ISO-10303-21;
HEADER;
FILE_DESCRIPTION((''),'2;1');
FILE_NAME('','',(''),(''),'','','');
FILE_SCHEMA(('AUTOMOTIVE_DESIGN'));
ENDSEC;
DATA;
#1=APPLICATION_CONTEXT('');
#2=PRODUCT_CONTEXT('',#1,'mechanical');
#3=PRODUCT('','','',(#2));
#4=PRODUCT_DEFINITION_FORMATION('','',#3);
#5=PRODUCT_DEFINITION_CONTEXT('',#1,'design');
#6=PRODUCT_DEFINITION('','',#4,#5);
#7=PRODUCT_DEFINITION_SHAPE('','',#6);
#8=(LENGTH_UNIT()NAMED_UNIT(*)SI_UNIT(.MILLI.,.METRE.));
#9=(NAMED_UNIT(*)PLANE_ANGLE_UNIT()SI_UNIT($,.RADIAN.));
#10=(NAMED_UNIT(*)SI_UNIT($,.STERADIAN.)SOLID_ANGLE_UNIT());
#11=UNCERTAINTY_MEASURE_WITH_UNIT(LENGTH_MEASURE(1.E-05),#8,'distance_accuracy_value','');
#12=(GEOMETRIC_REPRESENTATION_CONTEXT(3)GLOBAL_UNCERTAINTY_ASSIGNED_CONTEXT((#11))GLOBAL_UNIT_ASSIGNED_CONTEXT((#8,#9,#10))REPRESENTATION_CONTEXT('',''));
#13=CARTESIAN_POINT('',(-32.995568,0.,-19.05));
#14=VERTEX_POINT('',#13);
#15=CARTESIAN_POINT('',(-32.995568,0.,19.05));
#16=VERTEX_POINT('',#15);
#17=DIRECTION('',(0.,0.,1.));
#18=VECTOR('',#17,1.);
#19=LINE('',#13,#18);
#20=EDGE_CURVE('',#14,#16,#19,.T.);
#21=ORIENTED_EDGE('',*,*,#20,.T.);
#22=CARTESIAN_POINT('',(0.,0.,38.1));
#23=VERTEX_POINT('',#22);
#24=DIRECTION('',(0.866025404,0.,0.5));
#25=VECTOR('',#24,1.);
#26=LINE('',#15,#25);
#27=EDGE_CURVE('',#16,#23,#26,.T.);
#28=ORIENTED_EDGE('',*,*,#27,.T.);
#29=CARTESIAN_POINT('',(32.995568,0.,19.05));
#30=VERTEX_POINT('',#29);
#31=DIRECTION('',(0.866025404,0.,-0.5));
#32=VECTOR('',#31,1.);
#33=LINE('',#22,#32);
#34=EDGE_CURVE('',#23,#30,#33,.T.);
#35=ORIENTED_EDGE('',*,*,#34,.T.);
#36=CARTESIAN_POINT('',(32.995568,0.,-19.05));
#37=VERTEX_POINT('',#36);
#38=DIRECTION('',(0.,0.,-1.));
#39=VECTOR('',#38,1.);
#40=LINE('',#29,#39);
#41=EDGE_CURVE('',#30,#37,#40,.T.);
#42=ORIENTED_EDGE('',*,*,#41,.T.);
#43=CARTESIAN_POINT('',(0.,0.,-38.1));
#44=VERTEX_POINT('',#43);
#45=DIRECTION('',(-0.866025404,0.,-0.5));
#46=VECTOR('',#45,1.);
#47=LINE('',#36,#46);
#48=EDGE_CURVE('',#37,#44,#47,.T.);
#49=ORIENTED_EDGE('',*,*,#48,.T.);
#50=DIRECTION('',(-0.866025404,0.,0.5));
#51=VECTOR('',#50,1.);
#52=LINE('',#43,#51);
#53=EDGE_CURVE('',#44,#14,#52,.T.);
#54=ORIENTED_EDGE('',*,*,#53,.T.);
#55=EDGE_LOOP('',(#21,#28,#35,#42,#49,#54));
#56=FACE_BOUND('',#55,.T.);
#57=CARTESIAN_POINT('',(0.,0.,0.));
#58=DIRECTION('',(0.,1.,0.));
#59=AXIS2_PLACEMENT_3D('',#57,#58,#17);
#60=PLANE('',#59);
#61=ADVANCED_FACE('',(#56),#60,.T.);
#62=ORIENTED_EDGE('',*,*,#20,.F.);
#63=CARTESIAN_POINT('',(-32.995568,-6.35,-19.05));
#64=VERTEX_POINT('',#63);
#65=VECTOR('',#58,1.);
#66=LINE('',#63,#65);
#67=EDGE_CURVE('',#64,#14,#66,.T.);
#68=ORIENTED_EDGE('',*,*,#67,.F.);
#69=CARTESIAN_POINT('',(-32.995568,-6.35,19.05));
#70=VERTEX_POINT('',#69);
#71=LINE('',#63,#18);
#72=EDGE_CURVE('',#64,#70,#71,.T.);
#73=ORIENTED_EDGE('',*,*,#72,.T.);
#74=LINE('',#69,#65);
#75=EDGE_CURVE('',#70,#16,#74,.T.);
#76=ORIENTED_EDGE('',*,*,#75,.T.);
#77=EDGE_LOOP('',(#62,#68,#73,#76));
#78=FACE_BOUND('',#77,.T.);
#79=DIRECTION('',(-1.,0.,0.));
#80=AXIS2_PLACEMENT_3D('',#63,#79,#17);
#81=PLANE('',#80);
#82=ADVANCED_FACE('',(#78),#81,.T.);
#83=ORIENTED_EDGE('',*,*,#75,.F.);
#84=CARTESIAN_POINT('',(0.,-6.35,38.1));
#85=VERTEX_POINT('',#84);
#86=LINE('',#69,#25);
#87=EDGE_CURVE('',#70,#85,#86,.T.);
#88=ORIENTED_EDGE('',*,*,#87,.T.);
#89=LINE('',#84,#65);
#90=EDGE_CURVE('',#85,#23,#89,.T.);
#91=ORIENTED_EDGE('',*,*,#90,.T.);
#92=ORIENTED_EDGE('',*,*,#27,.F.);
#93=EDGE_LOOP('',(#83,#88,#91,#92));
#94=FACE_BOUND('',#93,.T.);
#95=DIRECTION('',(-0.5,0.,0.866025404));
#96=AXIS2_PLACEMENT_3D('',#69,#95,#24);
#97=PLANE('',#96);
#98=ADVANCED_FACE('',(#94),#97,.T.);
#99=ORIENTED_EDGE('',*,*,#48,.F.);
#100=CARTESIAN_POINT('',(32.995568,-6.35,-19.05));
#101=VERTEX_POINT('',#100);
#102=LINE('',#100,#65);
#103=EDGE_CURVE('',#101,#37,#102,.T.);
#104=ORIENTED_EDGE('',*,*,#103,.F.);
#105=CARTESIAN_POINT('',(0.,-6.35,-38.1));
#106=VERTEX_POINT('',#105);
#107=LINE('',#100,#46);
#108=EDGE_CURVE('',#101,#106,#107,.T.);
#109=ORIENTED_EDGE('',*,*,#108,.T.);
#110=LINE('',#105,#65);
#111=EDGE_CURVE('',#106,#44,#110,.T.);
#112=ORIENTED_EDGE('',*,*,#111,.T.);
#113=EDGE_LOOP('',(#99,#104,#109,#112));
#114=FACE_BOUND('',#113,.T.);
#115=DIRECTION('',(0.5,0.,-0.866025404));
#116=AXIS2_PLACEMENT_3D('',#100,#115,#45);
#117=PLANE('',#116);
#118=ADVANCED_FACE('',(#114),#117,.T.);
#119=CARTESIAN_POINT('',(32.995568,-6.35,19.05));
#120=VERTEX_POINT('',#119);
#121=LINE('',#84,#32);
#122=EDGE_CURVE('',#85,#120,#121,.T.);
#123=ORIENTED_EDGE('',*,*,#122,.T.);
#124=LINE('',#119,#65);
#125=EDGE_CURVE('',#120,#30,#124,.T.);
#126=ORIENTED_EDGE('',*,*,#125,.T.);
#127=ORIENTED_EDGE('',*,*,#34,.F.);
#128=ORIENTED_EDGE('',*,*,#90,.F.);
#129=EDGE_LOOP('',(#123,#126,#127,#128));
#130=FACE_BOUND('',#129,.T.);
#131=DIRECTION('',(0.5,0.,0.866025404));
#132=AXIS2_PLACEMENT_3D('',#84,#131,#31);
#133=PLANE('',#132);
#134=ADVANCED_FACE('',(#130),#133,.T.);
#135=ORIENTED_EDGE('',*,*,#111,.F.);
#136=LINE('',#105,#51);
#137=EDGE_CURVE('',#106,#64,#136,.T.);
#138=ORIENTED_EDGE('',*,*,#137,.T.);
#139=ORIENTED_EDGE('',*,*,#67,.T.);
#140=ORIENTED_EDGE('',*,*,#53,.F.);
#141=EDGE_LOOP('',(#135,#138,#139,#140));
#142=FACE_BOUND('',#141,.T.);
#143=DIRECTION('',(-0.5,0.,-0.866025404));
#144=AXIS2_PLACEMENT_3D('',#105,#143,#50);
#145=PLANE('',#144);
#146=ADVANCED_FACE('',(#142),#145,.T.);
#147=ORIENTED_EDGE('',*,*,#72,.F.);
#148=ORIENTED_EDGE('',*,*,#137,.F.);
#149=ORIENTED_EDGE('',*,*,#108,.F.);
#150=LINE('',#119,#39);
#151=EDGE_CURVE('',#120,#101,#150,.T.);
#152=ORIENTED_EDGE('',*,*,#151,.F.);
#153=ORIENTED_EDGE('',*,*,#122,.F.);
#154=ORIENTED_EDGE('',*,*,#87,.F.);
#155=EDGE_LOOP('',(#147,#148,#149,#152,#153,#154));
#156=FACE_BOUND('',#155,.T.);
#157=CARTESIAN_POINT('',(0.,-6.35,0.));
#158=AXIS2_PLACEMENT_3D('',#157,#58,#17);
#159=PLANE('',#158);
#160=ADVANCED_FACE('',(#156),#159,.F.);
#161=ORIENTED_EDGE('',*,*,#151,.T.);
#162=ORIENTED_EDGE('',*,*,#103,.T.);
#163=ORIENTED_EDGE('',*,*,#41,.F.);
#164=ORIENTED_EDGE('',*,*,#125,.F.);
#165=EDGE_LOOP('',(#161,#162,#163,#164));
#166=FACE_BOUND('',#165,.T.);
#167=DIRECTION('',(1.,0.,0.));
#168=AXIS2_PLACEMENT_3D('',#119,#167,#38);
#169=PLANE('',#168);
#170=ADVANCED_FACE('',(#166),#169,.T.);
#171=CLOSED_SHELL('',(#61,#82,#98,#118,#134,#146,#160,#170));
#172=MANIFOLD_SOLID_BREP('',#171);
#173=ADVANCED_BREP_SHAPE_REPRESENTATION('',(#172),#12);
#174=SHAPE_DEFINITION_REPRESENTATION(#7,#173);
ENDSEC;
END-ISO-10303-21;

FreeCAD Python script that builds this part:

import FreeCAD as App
import Part
import Sketcher
Q = App.Units.Quantity

doc = App.newDocument("Part")
body = doc.addObject("PartDesign::Body", "Body")

# Sketch on XZ plane
sketch1 = doc.addObject("Sketcher::SketchObject", "Sketch")
body.addObject(sketch1)
sketch1.AttachmentSupport = (doc.XZ_Plane, [""])
sketch1.MapMode = "FlatFace"
sketch1.addGeometry(Part.LineSegment(App.Vector(32.995568, -19.05, 0), App.Vector(0, -38.1, 0)), False)
sketch1.addGeometry(Part.LineSegment(App.Vector(0, -38.1, 0), App.Vector(-32.995568, -19.05, 0)), False)
sketch1.addGeometry(Part.LineSegment(App.Vector(-32.995568, -19.05, 0), App.Vector(-32.995568, 19.05, 0)), False)
sketch1.addGeometry(Part.LineSegment(App.Vector(-32.995568, 19.05, 0), App.Vector(0, 38.1, 0)), False)
sketch1.addGeometry(Part.LineSegment(App.Vector(0, 38.1, 0), App.Vector(32.995568, 19.05, 0)), False)
sketch1.addGeometry(Part.LineSegment(App.Vector(32.995568, 19.05, 0), App.Vector(32.995568, -19.05, 0)), False)
sketch1.addConstraint(Sketcher.Constraint("Coincident", 0, 2, 1, 1))
sketch1.addConstraint(Sketcher.Constraint("Coincident", 1, 2, 2, 1))
sketch1.addConstraint(Sketcher.Constraint("Coincident", 2, 2, 3, 1))
sketch1.addConstraint(Sketcher.Constraint("Coincident", 3, 2, 4, 1))
sketch1.addConstraint(Sketcher.Constraint("Coincident", 4, 2, 5, 1))
sketch1.addConstraint(Sketcher.Constraint("Coincident", 5, 2, 0, 1))
sketch1.addConstraint(Sketcher.Constraint("Vertical", 2))
sketch1.addConstraint(Sketcher.Constraint("Vertical", 5))
sketch1.addConstraint(Sketcher.Constraint("Symmetric", 0, 2, 3, 2, -1, 1))
sketch1.addConstraint(Sketcher.Constraint("Symmetric", 1, 2, 4, 2, -1, 1))
sketch1.addConstraint(Sketcher.Constraint("PointOnObject", 0, 2, -2))
sketch1.addConstraint(Sketcher.Constraint("Parallel", 0, 3))
sketch1.addConstraint(Sketcher.Constraint("Horizontal", 2, 2, 4, 2))
sketch1.addConstraint(Sketcher.Constraint("DistanceY", 2, 1, 2, 2, Q("1.5 in")))
sketch1.addConstraint(Sketcher.Constraint("Angle", 0, Q("-150 deg")))
sketch1.addConstraint(Sketcher.Constraint("DistanceY", 0, 2, 3, 2, Q("3 in")))
pad1 = doc.addObject("PartDesign::Pad", "Pad")
body.addObject(pad1)
pad1.Profile = sketch1
pad1.Length = Q("0.25 in")

doc.recompute()
